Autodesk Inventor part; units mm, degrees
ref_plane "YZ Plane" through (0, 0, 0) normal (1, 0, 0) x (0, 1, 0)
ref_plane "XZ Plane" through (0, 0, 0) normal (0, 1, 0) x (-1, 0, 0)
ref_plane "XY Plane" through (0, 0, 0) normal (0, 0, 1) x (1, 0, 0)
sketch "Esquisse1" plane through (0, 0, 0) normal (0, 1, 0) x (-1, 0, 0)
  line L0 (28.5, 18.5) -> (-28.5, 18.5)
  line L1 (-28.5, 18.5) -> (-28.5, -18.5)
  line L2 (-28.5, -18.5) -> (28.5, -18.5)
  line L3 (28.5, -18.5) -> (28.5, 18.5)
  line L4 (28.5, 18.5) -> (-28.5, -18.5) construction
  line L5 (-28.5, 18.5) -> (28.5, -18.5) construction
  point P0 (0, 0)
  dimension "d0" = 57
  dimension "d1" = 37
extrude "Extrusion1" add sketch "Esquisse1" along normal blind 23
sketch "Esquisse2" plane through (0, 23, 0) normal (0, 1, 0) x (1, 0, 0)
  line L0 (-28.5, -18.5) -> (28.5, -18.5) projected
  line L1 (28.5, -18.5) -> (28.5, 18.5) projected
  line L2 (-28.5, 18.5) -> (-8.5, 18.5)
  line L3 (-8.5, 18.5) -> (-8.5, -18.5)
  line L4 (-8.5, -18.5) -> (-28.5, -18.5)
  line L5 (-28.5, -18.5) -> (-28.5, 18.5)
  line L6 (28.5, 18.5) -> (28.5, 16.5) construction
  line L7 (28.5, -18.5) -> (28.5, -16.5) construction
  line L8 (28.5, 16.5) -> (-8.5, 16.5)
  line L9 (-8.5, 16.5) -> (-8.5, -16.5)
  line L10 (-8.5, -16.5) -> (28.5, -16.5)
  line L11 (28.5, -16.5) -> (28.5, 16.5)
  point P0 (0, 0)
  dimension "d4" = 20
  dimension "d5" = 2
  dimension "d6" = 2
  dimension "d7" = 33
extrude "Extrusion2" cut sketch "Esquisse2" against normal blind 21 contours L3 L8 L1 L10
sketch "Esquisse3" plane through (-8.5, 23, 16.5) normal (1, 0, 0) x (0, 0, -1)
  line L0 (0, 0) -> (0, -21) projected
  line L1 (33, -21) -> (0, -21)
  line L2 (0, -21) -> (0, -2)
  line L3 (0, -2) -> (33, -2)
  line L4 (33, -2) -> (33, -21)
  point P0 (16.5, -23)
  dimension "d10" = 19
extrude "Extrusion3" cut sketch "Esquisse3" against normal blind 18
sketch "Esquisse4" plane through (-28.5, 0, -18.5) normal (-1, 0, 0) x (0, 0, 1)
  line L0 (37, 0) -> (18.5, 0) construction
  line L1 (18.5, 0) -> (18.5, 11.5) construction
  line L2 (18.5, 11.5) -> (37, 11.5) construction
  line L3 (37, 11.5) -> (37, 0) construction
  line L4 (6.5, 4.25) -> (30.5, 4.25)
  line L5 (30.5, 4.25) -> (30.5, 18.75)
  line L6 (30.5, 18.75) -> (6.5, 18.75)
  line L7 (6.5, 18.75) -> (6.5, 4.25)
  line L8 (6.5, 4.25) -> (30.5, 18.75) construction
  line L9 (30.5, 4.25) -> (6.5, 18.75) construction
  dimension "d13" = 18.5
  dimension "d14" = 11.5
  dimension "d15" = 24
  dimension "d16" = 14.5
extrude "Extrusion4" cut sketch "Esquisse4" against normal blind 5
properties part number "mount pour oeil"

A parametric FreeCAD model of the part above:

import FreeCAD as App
import Part
import Sketcher
from FreeCAD import Vector
Q = App.Units.Quantity

doc = App.newDocument("Part")
body = doc.addObject("PartDesign::Body", "Body")

# Sketch on XZ plane
sketch1 = body.newObject("Sketcher::SketchObject", "Sketch")
sketch1.AttachmentSupport = (doc.getObject("XZ_Plane"), [""])
sketch1.MapMode = "FlatFace"
sketch1.addGeometry([
    Part.LineSegment(Vector(-28.5, -18.5, 0), Vector(-28.5, 18.5, 0)),
    Part.LineSegment(Vector(-28.5, 18.5, 0), Vector(28.5, 18.5, 0)),
    Part.LineSegment(Vector(28.5, 18.5, 0), Vector(28.5, -18.5, 0)),
    Part.LineSegment(Vector(28.5, -18.5, 0), Vector(-28.5, -18.5, 0)),
], False)
sketch1.addConstraint([
    Sketcher.Constraint("Coincident", 0, 2, 1, 1),
    Sketcher.Constraint("Coincident", 1, 2, 2, 1),
    Sketcher.Constraint("Coincident", 2, 2, 3, 1),
    Sketcher.Constraint("Coincident", 3, 2, 0, 1),
    Sketcher.Constraint("Vertical", 0),
    Sketcher.Constraint("Horizontal", 1),
    Sketcher.Constraint("Vertical", 2),
    Sketcher.Constraint("Horizontal", 3),
    Sketcher.Constraint("Symmetric", 0, 2, 2, 2, -1, 1),
    Sketcher.Constraint("DistanceX", 1, 1, 1, 2, Q("57 mm")),
    Sketcher.Constraint("DistanceY", 0, 1, 0, 2, Q("37 mm")),
])
pad1 = body.newObject("PartDesign::Pad", "Pad")
pad1.Profile = sketch1
pad1.Length = 23
pad1.Reversed = True

# Sketch on XZ plane
sketch2 = body.newObject("Sketcher::SketchObject", "Sketch001")
sketch2.AttachmentSupport = (doc.getObject("XZ_Plane"), [""])
sketch2.MapMode = "FlatFace"
sketch2.AttachmentOffset = App.Placement(Vector(0, 0, -23), App.Rotation())
sketch2.addGeometry([
    Part.LineSegment(Vector(-8.5, -16.5, 0), Vector(-8.5, 16.5, 0)),
    Part.LineSegment(Vector(-8.5, 16.5, 0), Vector(28.5, 16.5, 0)),
    Part.LineSegment(Vector(28.5, 16.5, 0), Vector(28.5, -16.5, 0)),
    Part.LineSegment(Vector(28.5, -16.5, 0), Vector(-8.5, -16.5, 0)),
], False)
sketch2.addConstraint([
    Sketcher.Constraint("Coincident", 0, 2, 1, 1),
    Sketcher.Constraint("Coincident", 1, 2, 2, 1),
    Sketcher.Constraint("Coincident", 2, 2, 3, 1),
    Sketcher.Constraint("Coincident", 3, 2, 0, 1),
    Sketcher.Constraint("Vertical", 0),
    Sketcher.Constraint("Horizontal", 1),
    Sketcher.Constraint("Vertical", 2),
    Sketcher.Constraint("Horizontal", 3),
    Sketcher.Constraint("DistanceY", 0, 1, 0, 2, Q("33 mm")),
    Sketcher.Constraint("DistanceX", 1, 1, 1, 2, Q("37 mm")),
    Sketcher.Constraint("DistanceX", 0, 2, -1, 1, Q("8.5 mm")),
    Sketcher.Constraint("DistanceY", -1, 1, 0, 2, Q("16.5 mm")),
])
pocket1 = body.newObject("PartDesign::Pocket", "Pocket")
pocket1.Profile = sketch2
pocket1.Length = 21
pocket1.Reversed = True

# Sketch on YZ plane
sketch3 = body.newObject("Sketcher::SketchObject", "Sketch002")
sketch3.AttachmentSupport = (doc.getObject("YZ_Plane"), [""])
sketch3.MapMode = "FlatFace"
sketch3.AttachmentOffset = App.Placement(Vector(0, 0, -8.5), App.Rotation())
sketch3.addGeometry([
    Part.LineSegment(Vector(21, -16.5, 0), Vector(21, 16.5, 0)),
    Part.LineSegment(Vector(21, 16.5, 0), Vector(2, 16.5, 0)),
    Part.LineSegment(Vector(2, 16.5, 0), Vector(2, -16.5, 0)),
    Part.LineSegment(Vector(2, -16.5, 0), Vector(21, -16.5, 0)),
], False)
sketch3.addConstraint([
    Sketcher.Constraint("Coincident", 0, 2, 1, 1),
    Sketcher.Constraint("Coincident", 1, 2, 2, 1),
    Sketcher.Constraint("Coincident", 2, 2, 3, 1),
    Sketcher.Constraint("Coincident", 3, 2, 0, 1),
    Sketcher.Constraint("Vertical", 0),
    Sketcher.Constraint("Horizontal", 1),
    Sketcher.Constraint("Vertical", 2),
    Sketcher.Constraint("Horizontal", 3),
    Sketcher.Constraint("DistanceX", 1, 2, 1, 1, Q("19 mm")),
    Sketcher.Constraint("DistanceY", 0, 1, 0, 2, Q("33 mm")),
    Sketcher.Constraint("DistanceX", -1, 1, 0, 2, Q("21 mm")),
    Sketcher.Constraint("DistanceY", -1, 1, 0, 2, Q("16.5 mm")),
])
pocket2 = body.newObject("PartDesign::Pocket", "Pocket001")
pocket2.Profile = sketch3
pocket2.Length = 18

# Sketch on YZ plane
sketch4 = body.newObject("Sketcher::SketchObject", "Sketch003")
sketch4.AttachmentSupport = (doc.getObject("YZ_Plane"), [""])
sketch4.MapMode = "FlatFace"
sketch4.AttachmentOffset = App.Placement(Vector(0, 0, -28.5), App.Rotation())
sketch4.addGeometry([
    Part.LineSegment(Vector(18.75, -12, 0), Vector(4.25, -12, 0)),
    Part.LineSegment(Vector(4.25, -12, 0), Vector(4.25, 12, 0)),
    Part.LineSegment(Vector(4.25, 12, 0), Vector(18.75, 12, 0)),
    Part.LineSegment(Vector(18.75, 12, 0), Vector(18.75, -12, 0)),
], False)
sketch4.addConstraint([
    Sketcher.Constraint("Coincident", 0, 2, 1, 1),
    Sketcher.Constraint("Coincident", 1, 2, 2, 1),
    Sketcher.Constraint("Coincident", 2, 2, 3, 1),
    Sketcher.Constraint("Coincident", 3, 2, 0, 1),
    Sketcher.Constraint("Horizontal", 0),
    Sketcher.Constraint("Vertical", 1),
    Sketcher.Constraint("Horizontal", 2),
    Sketcher.Constraint("Vertical", 3),
    Sketcher.Constraint("DistanceY", 1, 1, 1, 2, Q("24 mm")),
    Sketcher.Constraint("DistanceX", 0, 2, 0, 1, Q("14.5 mm")),
    Sketcher.Constraint("DistanceY", 0, 2, -1, 1, Q("12 mm")),
    Sketcher.Constraint("DistanceX", -1, 1, 0, 2, Q("4.25 mm")),
])
pocket3 = body.newObject("PartDesign::Pocket", "Pocket002")
pocket3.Profile = sketch4
pocket3.Length = 5
pocket3.Reversed = True

doc.recompute()
